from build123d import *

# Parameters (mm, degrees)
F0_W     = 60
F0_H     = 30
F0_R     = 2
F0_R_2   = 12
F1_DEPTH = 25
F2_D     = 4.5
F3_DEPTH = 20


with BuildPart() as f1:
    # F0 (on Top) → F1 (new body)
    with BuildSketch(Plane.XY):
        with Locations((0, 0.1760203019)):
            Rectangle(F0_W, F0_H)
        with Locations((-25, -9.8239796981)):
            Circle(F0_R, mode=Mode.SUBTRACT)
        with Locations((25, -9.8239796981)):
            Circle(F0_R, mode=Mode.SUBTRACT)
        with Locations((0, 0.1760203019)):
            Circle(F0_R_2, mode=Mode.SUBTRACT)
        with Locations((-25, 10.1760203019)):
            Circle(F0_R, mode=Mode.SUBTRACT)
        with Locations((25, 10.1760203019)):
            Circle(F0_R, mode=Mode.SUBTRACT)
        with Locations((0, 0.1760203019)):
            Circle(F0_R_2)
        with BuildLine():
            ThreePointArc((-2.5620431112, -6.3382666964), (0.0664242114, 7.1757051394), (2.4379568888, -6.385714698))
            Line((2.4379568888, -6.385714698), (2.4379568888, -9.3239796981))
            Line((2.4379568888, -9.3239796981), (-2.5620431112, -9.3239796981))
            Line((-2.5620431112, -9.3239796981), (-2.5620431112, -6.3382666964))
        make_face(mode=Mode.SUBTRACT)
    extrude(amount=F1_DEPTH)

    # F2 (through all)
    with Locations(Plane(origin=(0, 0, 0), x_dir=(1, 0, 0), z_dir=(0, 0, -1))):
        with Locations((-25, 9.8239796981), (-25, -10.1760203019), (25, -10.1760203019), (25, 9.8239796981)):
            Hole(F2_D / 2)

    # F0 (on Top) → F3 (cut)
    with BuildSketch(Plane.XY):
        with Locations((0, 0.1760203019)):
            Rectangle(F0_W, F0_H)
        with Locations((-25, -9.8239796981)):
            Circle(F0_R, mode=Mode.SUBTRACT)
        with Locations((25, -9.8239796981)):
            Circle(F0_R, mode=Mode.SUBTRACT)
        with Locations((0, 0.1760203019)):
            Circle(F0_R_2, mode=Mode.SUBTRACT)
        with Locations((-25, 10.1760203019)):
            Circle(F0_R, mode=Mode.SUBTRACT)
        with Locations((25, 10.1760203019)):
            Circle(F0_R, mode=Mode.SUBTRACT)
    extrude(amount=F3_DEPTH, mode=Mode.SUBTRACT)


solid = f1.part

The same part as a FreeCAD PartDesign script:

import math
import FreeCAD as App
import Part
import Sketcher

V = App.Vector


def add_polygon(sketch, points):
    """Adds a closed chain of lines whose ends are joined by coincident constraints."""
    first, n = sketch.GeometryCount, len(points)
    for a, b in zip(points, points[1:] + points[:1]):
        sketch.addGeometry(Part.LineSegment(App.Vector(*a, 0), App.Vector(*b, 0)), False)
    for i in range(n):
        sketch.addConstraint(Sketcher.Constraint("Coincident", first + i, 2, first + (i + 1) % n, 1))

doc = App.newDocument("Part")
body = doc.addObject("PartDesign::Body", "Body")

sketch1 = body.newObject("Sketcher::SketchObject", "Sketch")
sketch1.AttachmentSupport = (doc.getObject("XY_Plane"), [""])
sketch1.MapMode = "FlatFace"
add_polygon(sketch1, [(-30, 15.17602), (-30, -14.82398), (30, -14.82398), (30, 15.17602)])
sketch1.addGeometry(Part.Circle(V(-25, -9.82398, 0), V(0, 0, 1), 2), False)
sketch1.addGeometry(Part.Circle(V(25, -9.82398, 0), V(0, 0, 1), 2), False)
sketch1.addGeometry(Part.LineSegment(V(-2.562043, -9.32398, 0), V(-2.562043, -6.338267, 0)), False)
sketch1.addGeometry(Part.ArcOfCircle(Part.Circle(V(0, 0.17602, 0), V(0, 0, 1), 7), math.radians(-69.617879), math.radians(248.530483)), False)
sketch1.addGeometry(Part.LineSegment(V(2.437957, -6.385715, 0), V(2.437957, -9.32398, 0)), False)
sketch1.addGeometry(Part.LineSegment(V(2.437957, -9.32398, 0), V(-2.562043, -9.32398, 0)), False)
sketch1.addGeometry(Part.Circle(V(-25, 10.17602, 0), V(0, 0, 1), 2), False)
sketch1.addGeometry(Part.Circle(V(25, 10.17602, 0), V(0, 0, 1), 2), False)
sketch1.addConstraint([
    Sketcher.Constraint("Coincident", 6, 2, 7, 2),
    Sketcher.Constraint("Coincident", 7, 1, 8, 1),
    Sketcher.Constraint("Coincident", 8, 2, 9, 1),
    Sketcher.Constraint("Coincident", 9, 2, 6, 1),
    Sketcher.Constraint("Vertical", 0),
    Sketcher.Constraint("Horizontal", 1),
    Sketcher.Constraint("Vertical", 2),
    Sketcher.Constraint("Horizontal", 3),
    Sketcher.Constraint("Vertical", 6),
    Sketcher.Constraint("Vertical", 8),
    Sketcher.Constraint("Horizontal", 9),
    Sketcher.Constraint("Equal", 4, 5),
    Sketcher.Constraint("Equal", 5, 10),
    Sketcher.Constraint("Equal", 10, 11),
    Sketcher.Constraint("Symmetric", 4, 3, 5, 3, -2),
    Sketcher.Constraint("Symmetric", 10, 3, 11, 3, -2),
    Sketcher.Constraint("PointOnObject", 7, 3, -2),
    Sketcher.Constraint("Vertical", 4, 3, 10, 3),
    Sketcher.Constraint("Diameter", 4, 4.0),
    Sketcher.Constraint("Radius", 7, 7.0),
    Sketcher.Constraint("DistanceX", 1, 1, 1, 2, 60.0),
    Sketcher.Constraint("DistanceX", 9, 2, 9, 1, 5.0),
    Sketcher.Constraint("DistanceY", 0, 2, 0, 1, 30.0),
    Sketcher.Constraint("DistanceX", 4, 3, -1, 1, 25.0),
    Sketcher.Constraint("DistanceX", 0, 2, -1, 1, 30.0),
    Sketcher.Constraint("DistanceY", 4, 3, 7, 3, 10.0),
    Sketcher.Constraint("DistanceY", 4, 3, 10, 3, 20.0),
    Sketcher.Constraint("DistanceY", 0, 2, 4, 3, 5.0),
    Sketcher.Constraint("DistanceY", 8, 2, 7, 3, 9.5),
    Sketcher.Constraint("DistanceY", 6, 1, 6, 2, 2.985713),
    Sketcher.Constraint("DistanceY", 4, 3, -1, 1, 9.82398),
])
pad1 = body.newObject("PartDesign::Pad", "Pad")
pad1.Profile = sketch1
pad1.Length = 25

sketch2 = body.newObject("Sketcher::SketchObject", "Sketch001")
sketch2.AttachmentSupport = (doc.getObject("XY_Plane"), [""])
sketch2.MapMode = "FlatFace"
sketch2.addGeometry([
    Part.Circle(V(-25, -9.82398, 0), V(0, 0, 1), 2.25),
    Part.Circle(V(-25, 10.17602, 0), V(0, 0, 1), 2.25),
    Part.Circle(V(25, 10.17602, 0), V(0, 0, 1), 2.25),
    Part.Circle(V(25, -9.82398, 0), V(0, 0, 1), 2.25),
], False)
sketch2.addConstraint([
    Sketcher.Constraint("Equal", 0, 1),
    Sketcher.Constraint("Equal", 1, 2),
    Sketcher.Constraint("Equal", 2, 3),
    Sketcher.Constraint("Symmetric", 1, 3, 2, 3, -2),
    Sketcher.Constraint("Symmetric", 0, 3, 3, 3, -2),
    Sketcher.Constraint("Vertical", 0, 3, 1, 3),
    Sketcher.Constraint("Diameter", 0, 4.5),
    Sketcher.Constraint("DistanceX", 0, 3, -1, 1, 25.0),
    Sketcher.Constraint("DistanceY", 0, 3, 1, 3, 20.0),
    Sketcher.Constraint("DistanceY", 0, 3, -1, 1, 9.82398),
])
doc.recompute()
hole = body.newObject("PartDesign::Hole", "Hole")
hole.Profile = sketch2
hole.ThreadType = "None"
hole.Diameter = 4.5
hole.DepthType = "ThroughAll"
hole.Reversed = True

sketch3 = body.newObject("Sketcher::SketchObject", "Sketch002")
sketch3.AttachmentSupport = (doc.getObject("XY_Plane"), [""])
sketch3.MapMode = "FlatFace"
add_polygon(sketch3, [(-30, 15.17602), (-30, -14.82398), (30, -14.82398), (30, 15.17602)])
sketch3.addGeometry(Part.Circle(V(-25, -9.82398, 0), V(0, 0, 1), 2), False)
sketch3.addGeometry(Part.Circle(V(25, -9.82398, 0), V(0, 0, 1), 2), False)
sketch3.addGeometry(Part.Circle(V(-25, 10.17602, 0), V(0, 0, 1), 2), False)
sketch3.addGeometry(Part.Circle(V(0, 0.17602, 0), V(0, 0, 1), 12), False)
sketch3.addGeometry(Part.Circle(V(25, 10.17602, 0), V(0, 0, 1), 2), False)
sketch3.addConstraint([
    Sketcher.Constraint("Vertical", 0),
    Sketcher.Constraint("Horizontal", 1),
    Sketcher.Constraint("Vertical", 2),
    Sketcher.Constraint("Horizontal", 3),
    Sketcher.Constraint("Equal", 4, 5),
    Sketcher.Constraint("Equal", 5, 6),
    Sketcher.Constraint("Equal", 6, 8),
    Sketcher.Constraint("Symmetric", 4, 3, 5, 3, -2),
    Sketcher.Constraint("Symmetric", 6, 3, 8, 3, -2),
    Sketcher.Constraint("PointOnObject", 7, 3, -2),
    Sketcher.Constraint("Vertical", 4, 3, 6, 3),
    Sketcher.Constraint("Diameter", 4, 4.0),
    Sketcher.Constraint("Diameter", 7, 24.0),
    Sketcher.Constraint("DistanceX", 1, 1, 1, 2, 60.0),
    Sketcher.Constraint("DistanceY", 0, 2, 0, 1, 30.0),
    Sketcher.Constraint("DistanceX", 4, 3, -1, 1, 25.0),
    Sketcher.Constraint("DistanceX", 0, 2, -1, 1, 30.0),
    Sketcher.Constraint("DistanceY", 4, 3, 6, 3, 20.0),
    Sketcher.Constraint("DistanceY", 4, 3, 7, 3, 10.0),
    Sketcher.Constraint("DistanceY", 0, 2, 4, 3, 5.0),
    Sketcher.Constraint("DistanceY", 4, 3, -1, 1, 9.82398),
])
pocket1 = body.newObject("PartDesign::Pocket", "Pocket")
pocket1.Profile = sketch3
pocket1.Length = 20
pocket1.Reversed = True

doc.recompute()
